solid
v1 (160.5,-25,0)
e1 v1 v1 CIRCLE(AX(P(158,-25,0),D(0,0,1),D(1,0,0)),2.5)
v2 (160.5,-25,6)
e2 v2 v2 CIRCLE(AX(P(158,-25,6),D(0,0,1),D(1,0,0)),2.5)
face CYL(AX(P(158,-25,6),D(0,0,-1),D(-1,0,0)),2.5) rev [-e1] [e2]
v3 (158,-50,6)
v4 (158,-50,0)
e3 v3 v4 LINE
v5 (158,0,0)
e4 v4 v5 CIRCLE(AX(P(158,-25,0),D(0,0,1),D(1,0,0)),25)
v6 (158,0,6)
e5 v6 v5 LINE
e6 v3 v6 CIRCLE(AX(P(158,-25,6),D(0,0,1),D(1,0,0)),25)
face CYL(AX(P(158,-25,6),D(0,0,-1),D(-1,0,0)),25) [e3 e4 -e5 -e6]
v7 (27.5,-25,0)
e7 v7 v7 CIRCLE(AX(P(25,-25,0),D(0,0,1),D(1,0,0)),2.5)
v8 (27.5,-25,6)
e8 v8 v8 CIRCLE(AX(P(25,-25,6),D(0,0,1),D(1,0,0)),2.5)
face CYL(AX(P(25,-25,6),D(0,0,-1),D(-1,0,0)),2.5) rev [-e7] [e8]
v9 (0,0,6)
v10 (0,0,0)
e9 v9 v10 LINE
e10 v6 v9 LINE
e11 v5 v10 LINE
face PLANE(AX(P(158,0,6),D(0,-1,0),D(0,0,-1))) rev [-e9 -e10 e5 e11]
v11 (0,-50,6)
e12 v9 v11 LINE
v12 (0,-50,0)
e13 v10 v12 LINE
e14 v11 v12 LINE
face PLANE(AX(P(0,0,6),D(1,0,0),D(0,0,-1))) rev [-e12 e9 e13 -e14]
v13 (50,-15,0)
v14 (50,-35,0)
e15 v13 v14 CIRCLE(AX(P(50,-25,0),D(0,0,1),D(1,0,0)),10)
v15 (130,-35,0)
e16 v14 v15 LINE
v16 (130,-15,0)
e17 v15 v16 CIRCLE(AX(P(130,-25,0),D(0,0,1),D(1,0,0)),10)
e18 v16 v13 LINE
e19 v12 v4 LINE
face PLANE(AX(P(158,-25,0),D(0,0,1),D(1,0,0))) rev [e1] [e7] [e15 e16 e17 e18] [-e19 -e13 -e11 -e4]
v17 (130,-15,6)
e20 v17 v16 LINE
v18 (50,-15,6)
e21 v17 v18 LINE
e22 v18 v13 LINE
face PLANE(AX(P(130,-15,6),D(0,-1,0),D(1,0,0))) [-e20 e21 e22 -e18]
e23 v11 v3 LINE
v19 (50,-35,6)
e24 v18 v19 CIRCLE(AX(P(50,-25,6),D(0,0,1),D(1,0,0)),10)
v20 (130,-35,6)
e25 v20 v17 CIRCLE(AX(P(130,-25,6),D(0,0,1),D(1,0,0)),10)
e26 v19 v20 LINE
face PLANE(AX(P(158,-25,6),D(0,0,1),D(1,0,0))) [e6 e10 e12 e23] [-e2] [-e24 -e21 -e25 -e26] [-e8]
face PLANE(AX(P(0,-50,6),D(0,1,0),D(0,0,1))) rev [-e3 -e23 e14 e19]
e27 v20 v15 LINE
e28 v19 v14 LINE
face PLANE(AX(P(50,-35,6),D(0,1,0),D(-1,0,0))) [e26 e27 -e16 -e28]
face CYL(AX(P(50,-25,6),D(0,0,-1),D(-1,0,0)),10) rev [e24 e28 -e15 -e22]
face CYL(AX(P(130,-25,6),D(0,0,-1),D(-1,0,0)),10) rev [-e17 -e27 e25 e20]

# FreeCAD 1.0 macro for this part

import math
import FreeCAD as App
import Part
import Sketcher
from FreeCAD import Vector
Q = App.Units.Quantity

doc = App.newDocument("Part")
body = doc.addObject("PartDesign::Body", "Body")

# Sketch on XY plane
sketch1 = body.newObject("Sketcher::SketchObject", "Sketch")
sketch1.AttachmentSupport = (doc.getObject("XY_Plane"), [""])
sketch1.MapMode = "FlatFace"
sketch1.addGeometry(Part.LineSegment(Vector(0, -50, 0), Vector(158, -50, 0)), False)
sketch1.addGeometry(Part.ArcOfCircle(Part.Circle(Vector(158, -25, 0), Vector(0, 0, 1), 25), math.radians(-90), math.radians(90)), False)
sketch1.addGeometry(Part.LineSegment(Vector(158, 0, 0), Vector(0, 0, 0)), False)
sketch1.addGeometry(Part.LineSegment(Vector(0, 0, 0), Vector(0, -50, 0)), False)
sketch1.addGeometry(Part.Circle(Vector(25, -25, 0), Vector(0, 0, 1), 2.5), False)
sketch1.addGeometry(Part.LineSegment(Vector(130, -35, 0), Vector(50, -35, 0)), False)
sketch1.addGeometry(Part.ArcOfCircle(Part.Circle(Vector(50, -25, 0), Vector(0, 0, 1), 10), math.radians(90), math.radians(270)), False)
sketch1.addGeometry(Part.LineSegment(Vector(50, -15, 0), Vector(130, -15, 0)), False)
sketch1.addGeometry(Part.ArcOfCircle(Part.Circle(Vector(130, -25, 0), Vector(0, 0, 1), 10), math.radians(-90), math.radians(90)), False)
sketch1.addGeometry(Part.Circle(Vector(158, -25, 0), Vector(0, 0, 1), 2.5), False)
sketch1.addConstraint(Sketcher.Constraint("Tangent", 0, 2, 1, 1))
sketch1.addConstraint(Sketcher.Constraint("Tangent", 1, 2, 2, 1))
sketch1.addConstraint(Sketcher.Constraint("Coincident", 2, 2, 3, 1))
sketch1.addConstraint(Sketcher.Constraint("Coincident", 3, 2, 0, 1))
sketch1.addConstraint(Sketcher.Constraint("Tangent", 5, 2, 6, 2))
sketch1.addConstraint(Sketcher.Constraint("Tangent", 6, 1, 7, 1))
sketch1.addConstraint(Sketcher.Constraint("Tangent", 7, 2, 8, 2))
sketch1.addConstraint(Sketcher.Constraint("Tangent", 8, 1, 5, 1))
sketch1.addConstraint(Sketcher.Constraint("Horizontal", 0))
sketch1.addConstraint(Sketcher.Constraint("Horizontal", 2))
sketch1.addConstraint(Sketcher.Constraint("Vertical", 3))
sketch1.addConstraint(Sketcher.Constraint("Horizontal", 5))
sketch1.addConstraint(Sketcher.Constraint("Horizontal", 7))
sketch1.addConstraint(Sketcher.Constraint("Coincident", 2, 2, -1, 1))
sketch1.addConstraint(Sketcher.Constraint("Coincident", 9, 3, 1, 3))
sketch1.addConstraint(Sketcher.Constraint("Equal", 4, 9))
sketch1.addConstraint(Sketcher.Constraint("Horizontal", 1, 3, 4, 3))
sketch1.addConstraint(Sketcher.Constraint("Horizontal", 4, 3, 6, 3))
sketch1.addConstraint(Sketcher.Constraint("Diameter", 4, Q("5 mm")))
sketch1.addConstraint(Sketcher.Constraint("Radius", 1, Q("25 mm")))
sketch1.addConstraint(Sketcher.Constraint("Radius", 6, Q("10 mm")))
sketch1.addConstraint(Sketcher.Constraint("DistanceX", 0, 1, 0, 2, Q("158 mm")))
sketch1.addConstraint(Sketcher.Constraint("DistanceX", 5, 2, 5, 1, Q("80 mm")))
sketch1.addConstraint(Sketcher.Constraint("DistanceX", -1, 1, 4, 3, Q("25 mm")))
sketch1.addConstraint(Sketcher.Constraint("DistanceX", -1, 1, 6, 3, Q("50 mm")))
pad1 = body.newObject("PartDesign::Pad", "Pad")
pad1.Profile = sketch1
pad1.Length = 6

doc.recompute()
